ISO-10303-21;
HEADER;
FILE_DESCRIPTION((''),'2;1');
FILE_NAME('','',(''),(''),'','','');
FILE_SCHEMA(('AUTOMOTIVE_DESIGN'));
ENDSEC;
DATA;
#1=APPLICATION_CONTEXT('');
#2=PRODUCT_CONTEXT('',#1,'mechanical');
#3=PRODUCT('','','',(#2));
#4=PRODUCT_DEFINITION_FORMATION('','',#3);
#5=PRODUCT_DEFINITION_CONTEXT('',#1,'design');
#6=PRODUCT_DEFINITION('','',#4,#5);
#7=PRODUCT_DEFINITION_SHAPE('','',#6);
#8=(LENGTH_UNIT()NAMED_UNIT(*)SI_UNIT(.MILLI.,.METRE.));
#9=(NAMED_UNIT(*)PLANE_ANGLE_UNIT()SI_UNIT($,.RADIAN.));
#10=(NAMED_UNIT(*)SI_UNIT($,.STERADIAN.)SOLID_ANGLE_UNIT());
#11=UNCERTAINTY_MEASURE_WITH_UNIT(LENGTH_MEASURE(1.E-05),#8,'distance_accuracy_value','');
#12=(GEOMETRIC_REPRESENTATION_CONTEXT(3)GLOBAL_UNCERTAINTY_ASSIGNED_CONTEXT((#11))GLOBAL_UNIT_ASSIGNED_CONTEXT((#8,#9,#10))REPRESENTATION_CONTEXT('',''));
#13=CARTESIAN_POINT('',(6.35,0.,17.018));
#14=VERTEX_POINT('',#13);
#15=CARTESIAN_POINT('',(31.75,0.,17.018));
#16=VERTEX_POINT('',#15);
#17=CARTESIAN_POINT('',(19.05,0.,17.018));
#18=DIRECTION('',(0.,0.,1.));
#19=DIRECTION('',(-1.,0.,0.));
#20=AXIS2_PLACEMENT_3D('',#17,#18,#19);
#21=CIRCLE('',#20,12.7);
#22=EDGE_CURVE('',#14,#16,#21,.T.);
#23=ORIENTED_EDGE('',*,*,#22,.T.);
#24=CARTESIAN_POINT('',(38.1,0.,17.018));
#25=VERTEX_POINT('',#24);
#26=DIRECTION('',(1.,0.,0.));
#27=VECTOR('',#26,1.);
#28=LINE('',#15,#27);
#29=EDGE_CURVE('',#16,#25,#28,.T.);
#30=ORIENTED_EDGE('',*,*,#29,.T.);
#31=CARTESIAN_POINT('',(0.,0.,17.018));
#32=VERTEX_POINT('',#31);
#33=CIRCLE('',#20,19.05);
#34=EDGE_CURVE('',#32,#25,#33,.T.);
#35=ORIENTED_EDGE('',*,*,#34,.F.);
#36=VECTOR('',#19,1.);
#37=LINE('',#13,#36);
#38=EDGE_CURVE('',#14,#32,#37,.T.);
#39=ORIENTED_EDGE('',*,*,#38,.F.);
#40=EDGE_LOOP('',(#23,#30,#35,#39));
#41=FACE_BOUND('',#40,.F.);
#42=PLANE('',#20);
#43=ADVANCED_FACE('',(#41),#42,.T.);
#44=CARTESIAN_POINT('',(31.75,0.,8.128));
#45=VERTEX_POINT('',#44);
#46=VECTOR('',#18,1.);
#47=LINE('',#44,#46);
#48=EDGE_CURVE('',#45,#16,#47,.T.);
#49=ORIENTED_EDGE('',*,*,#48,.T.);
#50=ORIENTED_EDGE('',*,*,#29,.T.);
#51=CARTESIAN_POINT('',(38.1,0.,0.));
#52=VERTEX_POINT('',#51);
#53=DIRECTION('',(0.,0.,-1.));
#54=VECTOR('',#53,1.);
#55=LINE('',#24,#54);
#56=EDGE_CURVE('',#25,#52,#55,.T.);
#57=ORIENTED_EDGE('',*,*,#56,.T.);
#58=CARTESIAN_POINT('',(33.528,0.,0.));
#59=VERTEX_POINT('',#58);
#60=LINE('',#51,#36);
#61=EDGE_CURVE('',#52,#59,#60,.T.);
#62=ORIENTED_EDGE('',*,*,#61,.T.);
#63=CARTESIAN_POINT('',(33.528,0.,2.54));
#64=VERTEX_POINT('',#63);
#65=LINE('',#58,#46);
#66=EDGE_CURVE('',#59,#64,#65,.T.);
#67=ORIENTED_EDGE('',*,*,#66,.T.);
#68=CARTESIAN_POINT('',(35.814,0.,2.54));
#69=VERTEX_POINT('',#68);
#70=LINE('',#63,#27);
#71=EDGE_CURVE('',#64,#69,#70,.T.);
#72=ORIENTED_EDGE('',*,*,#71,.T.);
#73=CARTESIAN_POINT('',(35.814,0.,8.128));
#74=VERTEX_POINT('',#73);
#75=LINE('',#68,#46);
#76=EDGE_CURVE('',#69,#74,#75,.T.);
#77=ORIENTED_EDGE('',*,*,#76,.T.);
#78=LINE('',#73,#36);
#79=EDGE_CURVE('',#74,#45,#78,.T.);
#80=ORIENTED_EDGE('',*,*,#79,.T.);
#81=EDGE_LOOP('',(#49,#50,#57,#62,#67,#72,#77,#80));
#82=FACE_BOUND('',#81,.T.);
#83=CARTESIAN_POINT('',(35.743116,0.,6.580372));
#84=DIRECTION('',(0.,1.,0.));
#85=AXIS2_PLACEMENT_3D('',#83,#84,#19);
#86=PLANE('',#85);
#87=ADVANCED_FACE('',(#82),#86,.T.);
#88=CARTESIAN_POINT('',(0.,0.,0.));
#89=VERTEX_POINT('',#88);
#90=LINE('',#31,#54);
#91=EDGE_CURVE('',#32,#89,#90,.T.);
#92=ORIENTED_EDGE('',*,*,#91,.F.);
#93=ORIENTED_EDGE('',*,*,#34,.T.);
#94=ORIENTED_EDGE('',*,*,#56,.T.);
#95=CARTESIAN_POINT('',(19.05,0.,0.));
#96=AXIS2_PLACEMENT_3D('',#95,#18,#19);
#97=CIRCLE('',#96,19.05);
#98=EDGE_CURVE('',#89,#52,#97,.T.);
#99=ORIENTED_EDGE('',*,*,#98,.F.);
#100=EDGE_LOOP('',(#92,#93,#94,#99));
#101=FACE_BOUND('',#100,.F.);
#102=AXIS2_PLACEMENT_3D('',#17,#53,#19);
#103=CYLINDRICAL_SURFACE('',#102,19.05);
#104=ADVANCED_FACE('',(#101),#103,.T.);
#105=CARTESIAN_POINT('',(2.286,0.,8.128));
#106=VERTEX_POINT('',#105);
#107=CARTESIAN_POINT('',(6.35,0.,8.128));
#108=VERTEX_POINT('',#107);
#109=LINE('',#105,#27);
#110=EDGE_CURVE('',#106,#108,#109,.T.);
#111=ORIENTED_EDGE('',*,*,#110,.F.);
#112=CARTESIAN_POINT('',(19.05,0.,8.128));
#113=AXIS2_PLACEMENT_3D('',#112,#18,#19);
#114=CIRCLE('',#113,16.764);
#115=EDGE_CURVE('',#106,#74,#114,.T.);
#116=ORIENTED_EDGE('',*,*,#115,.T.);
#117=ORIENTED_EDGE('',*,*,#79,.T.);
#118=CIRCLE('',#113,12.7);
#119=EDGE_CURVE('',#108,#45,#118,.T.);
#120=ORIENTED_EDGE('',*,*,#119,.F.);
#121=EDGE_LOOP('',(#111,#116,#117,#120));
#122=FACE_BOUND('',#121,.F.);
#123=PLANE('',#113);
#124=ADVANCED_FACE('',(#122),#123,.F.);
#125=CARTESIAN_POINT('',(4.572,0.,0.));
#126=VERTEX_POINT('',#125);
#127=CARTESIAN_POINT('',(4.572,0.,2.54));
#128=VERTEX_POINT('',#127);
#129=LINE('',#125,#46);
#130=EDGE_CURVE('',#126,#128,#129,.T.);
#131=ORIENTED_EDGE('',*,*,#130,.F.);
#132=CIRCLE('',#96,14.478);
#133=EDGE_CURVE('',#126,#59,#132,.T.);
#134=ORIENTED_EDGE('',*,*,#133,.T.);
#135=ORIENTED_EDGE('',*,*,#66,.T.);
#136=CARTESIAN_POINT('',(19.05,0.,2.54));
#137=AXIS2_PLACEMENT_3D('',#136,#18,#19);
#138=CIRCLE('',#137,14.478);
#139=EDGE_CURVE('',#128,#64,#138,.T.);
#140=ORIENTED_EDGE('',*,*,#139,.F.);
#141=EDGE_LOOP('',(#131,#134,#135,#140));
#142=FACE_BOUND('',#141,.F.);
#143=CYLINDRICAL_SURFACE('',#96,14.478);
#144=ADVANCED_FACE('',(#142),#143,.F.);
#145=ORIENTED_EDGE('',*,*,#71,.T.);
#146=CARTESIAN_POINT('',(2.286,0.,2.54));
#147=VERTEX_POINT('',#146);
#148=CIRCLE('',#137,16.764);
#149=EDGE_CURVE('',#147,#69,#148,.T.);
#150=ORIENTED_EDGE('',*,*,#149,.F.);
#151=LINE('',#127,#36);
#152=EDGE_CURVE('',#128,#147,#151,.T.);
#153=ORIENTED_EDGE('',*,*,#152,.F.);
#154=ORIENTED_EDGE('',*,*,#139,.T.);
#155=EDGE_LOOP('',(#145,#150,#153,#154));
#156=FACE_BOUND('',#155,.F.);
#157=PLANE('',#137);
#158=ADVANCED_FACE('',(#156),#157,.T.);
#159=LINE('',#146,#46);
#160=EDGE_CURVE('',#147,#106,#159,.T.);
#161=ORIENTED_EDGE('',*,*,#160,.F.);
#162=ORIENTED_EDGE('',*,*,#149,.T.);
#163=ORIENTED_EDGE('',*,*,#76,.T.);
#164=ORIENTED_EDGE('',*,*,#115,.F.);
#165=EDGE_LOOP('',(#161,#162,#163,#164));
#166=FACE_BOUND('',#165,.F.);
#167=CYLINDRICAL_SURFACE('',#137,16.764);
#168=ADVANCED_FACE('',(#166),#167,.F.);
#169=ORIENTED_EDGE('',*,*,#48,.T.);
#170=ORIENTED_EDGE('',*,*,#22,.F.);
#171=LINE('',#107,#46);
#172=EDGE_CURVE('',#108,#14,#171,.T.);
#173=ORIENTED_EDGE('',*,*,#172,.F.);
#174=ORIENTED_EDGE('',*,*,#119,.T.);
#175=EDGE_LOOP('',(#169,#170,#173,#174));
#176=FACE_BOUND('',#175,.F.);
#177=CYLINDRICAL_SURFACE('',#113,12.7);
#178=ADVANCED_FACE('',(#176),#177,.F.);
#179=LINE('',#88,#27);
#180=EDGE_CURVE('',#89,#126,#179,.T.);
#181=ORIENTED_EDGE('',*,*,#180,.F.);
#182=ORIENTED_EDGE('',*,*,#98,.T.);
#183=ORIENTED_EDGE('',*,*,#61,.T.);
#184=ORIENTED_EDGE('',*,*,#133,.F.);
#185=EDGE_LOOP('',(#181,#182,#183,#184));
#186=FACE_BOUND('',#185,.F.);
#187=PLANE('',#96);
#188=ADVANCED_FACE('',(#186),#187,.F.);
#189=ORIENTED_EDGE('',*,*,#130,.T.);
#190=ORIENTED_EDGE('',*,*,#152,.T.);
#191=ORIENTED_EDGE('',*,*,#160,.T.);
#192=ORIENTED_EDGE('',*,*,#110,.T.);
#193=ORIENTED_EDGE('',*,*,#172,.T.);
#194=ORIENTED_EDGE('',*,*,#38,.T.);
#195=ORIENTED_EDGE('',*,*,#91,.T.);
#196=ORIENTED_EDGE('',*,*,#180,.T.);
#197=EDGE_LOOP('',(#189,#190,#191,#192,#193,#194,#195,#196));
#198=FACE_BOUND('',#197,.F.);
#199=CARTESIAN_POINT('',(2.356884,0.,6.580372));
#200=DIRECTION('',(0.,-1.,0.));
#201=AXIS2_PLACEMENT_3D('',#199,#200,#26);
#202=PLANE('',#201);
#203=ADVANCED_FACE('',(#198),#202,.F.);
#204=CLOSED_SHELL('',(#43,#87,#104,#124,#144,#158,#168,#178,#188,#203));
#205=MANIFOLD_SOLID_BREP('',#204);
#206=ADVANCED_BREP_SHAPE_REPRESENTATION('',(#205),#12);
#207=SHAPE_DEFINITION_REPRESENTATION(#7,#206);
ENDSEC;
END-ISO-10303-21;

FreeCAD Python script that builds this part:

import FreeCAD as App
import Part
import Sketcher
Q = App.Units.Quantity


def add_polygon(sketch, points):
    """Adds a closed chain of lines whose ends are joined by coincident constraints."""
    first, n = sketch.GeometryCount, len(points)
    for a, b in zip(points, points[1:] + points[:1]):
        sketch.addGeometry(Part.LineSegment(App.Vector(*a, 0), App.Vector(*b, 0)), False)
    for i in range(n):
        sketch.addConstraint(Sketcher.Constraint("Coincident", first + i, 2, first + (i + 1) % n, 1))

doc = App.newDocument("Part")
body = doc.addObject("PartDesign::Body", "Body")

sketch1 = doc.addObject("Sketcher::SketchObject", "Sketch")
body.addObject(sketch1)
sketch1.AttachmentSupport = (doc.XZ_Plane, [""])
sketch1.MapMode = "FlatFace"
add_polygon(sketch1, [(0, 0), (4.6, 0), (4.6, 2.5), (2.3, 2.5), (2.3, 8.1), (6.3, 8.1), (6.3, 17), (0, 17)])
sketch1.addGeometry(Part.LineSegment(App.Vector(19.1, 0, 0), App.Vector(19.1, 17, 0)), True)
sketch1.addConstraint([
    Sketcher.Constraint("Horizontal", 0),
    Sketcher.Constraint("Vertical", 1),
    Sketcher.Constraint("Horizontal", 2),
    Sketcher.Constraint("Vertical", 3),
    Sketcher.Constraint("Horizontal", 4),
    Sketcher.Constraint("Vertical", 5),
    Sketcher.Constraint("Horizontal", 6),
    Sketcher.Constraint("Vertical", 7),
    Sketcher.Constraint("Vertical", 8),
    Sketcher.Constraint("Coincident", 7, 2, -1, 1),
    Sketcher.Constraint("PointOnObject", 8, 1, -1),
    Sketcher.Constraint("Horizontal", 6, 2, 8, 2),
    Sketcher.Constraint("DistanceY", 1, 1, 1, 2, Q("0.1 in")),
    Sketcher.Constraint("DistanceX", 0, 1, 0, 2, Q("0.18 in")),
    Sketcher.Constraint("DistanceX", 2, 2, 2, 1, Q("0.09 in")),
    Sketcher.Constraint("DistanceX", 4, 1, 4, 2, Q("0.16 in")),
    Sketcher.Constraint("DistanceY", 3, 1, 3, 2, Q("0.22 in")),
    Sketcher.Constraint("DistanceY", 5, 1, 5, 2, Q("0.35 in")),
    Sketcher.Constraint("DistanceX", 4, 2, 8, 1, Q("0.5 in")),
])
revolution = doc.addObject("PartDesign::Revolution", "Revolution")
body.addObject(revolution)
revolution.Profile = sketch1
revolution.ReferenceAxis = (sketch1, ["Axis0"])
revolution.Angle = 180

doc.recompute()
